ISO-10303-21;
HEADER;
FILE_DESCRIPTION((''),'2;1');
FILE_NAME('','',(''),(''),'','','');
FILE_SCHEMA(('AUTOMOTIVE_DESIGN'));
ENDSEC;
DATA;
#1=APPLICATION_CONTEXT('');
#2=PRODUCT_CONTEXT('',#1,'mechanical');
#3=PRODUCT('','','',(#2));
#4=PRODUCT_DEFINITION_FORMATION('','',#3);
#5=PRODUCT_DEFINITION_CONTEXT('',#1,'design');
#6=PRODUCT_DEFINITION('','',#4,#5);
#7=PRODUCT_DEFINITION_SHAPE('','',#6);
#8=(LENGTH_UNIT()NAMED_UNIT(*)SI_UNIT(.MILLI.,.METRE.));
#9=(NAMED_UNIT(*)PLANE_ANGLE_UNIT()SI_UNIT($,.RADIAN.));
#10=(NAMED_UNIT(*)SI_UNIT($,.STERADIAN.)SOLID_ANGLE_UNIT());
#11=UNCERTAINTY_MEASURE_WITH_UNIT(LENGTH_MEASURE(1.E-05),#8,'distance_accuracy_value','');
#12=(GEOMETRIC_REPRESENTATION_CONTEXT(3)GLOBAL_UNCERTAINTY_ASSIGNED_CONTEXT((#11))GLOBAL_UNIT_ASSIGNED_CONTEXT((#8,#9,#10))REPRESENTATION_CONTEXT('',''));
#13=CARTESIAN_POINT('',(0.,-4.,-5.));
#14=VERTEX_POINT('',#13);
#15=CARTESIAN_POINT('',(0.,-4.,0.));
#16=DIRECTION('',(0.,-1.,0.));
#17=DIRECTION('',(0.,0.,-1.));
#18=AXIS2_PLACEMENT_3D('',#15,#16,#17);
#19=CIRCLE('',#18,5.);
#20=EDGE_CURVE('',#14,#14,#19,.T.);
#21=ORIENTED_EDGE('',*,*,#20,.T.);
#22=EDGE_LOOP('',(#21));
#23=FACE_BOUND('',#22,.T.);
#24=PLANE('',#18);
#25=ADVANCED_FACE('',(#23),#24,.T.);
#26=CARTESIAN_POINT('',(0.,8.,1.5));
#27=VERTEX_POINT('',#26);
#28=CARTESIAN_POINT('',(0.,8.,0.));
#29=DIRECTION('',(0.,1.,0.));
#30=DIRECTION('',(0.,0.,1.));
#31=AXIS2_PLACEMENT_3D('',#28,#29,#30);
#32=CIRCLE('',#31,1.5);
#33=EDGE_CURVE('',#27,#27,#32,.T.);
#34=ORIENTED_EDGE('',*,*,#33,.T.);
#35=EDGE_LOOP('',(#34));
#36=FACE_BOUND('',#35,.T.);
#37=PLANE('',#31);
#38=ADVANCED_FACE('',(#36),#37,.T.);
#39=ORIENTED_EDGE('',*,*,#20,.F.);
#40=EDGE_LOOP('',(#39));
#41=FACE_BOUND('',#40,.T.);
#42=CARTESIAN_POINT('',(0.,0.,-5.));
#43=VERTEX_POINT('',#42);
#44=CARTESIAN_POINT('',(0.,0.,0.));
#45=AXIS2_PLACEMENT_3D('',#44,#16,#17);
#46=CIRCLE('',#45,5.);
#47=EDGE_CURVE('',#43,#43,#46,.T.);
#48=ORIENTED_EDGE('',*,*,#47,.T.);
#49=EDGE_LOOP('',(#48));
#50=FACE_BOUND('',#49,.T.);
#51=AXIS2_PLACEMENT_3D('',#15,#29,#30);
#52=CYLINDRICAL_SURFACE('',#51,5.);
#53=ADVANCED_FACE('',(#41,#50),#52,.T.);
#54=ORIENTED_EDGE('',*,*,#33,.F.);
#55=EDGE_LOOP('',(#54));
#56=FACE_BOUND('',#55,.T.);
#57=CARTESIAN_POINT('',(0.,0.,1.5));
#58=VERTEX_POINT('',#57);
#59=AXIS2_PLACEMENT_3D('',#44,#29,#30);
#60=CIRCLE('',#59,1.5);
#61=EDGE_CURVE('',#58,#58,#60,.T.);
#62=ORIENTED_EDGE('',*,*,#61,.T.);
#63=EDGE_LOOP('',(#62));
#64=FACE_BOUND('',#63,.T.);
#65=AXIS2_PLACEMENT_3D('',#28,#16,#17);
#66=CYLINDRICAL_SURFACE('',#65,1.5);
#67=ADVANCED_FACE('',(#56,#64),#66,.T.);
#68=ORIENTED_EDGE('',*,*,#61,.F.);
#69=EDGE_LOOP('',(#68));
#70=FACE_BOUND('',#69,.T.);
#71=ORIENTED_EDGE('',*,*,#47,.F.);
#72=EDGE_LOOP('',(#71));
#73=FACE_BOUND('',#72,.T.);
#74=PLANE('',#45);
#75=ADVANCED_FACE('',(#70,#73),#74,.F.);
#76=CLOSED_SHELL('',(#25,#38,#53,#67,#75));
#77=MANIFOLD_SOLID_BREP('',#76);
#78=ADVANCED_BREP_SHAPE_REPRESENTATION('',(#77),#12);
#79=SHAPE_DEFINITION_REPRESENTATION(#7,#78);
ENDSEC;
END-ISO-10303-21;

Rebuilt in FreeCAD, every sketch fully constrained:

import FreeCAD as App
import Part
import Sketcher
from FreeCAD import Vector

doc = App.newDocument("Part")
body = doc.addObject("PartDesign::Body", "Body")

sketch1 = body.newObject("Sketcher::SketchObject", "Sketch")
sketch1.AttachmentSupport = (doc.getObject("XZ_Plane"), [""])
sketch1.MapMode = "FlatFace"
sketch1.addGeometry(Part.Circle(Vector(0, 0, 0), Vector(0, 0, 1), 1.5), False)
sketch1.addConstraint(Sketcher.Constraint("Coincident", 0, 3, -1, 1))
sketch1.addConstraint(Sketcher.Constraint("Diameter", 0, 3.0))
pad1 = body.newObject("PartDesign::Pad", "Pad")
pad1.Profile = sketch1
pad1.Length = 8
pad1.Reversed = True

sketch2 = body.newObject("Sketcher::SketchObject", "Sketch001")
sketch2.AttachmentSupport = (doc.getObject("XZ_Plane"), [""])
sketch2.MapMode = "FlatFace"
sketch2.addGeometry(Part.Circle(Vector(0, 0, 0), Vector(0, 0, 1), 5), False)
sketch2.addConstraint(Sketcher.Constraint("Coincident", 0, 3, -1, 1))
sketch2.addConstraint(Sketcher.Constraint("Diameter", 0, 10.0))
pad2 = body.newObject("PartDesign::Pad", "Pad001")
pad2.Profile = sketch2
pad2.Length = 4

doc.recompute()
